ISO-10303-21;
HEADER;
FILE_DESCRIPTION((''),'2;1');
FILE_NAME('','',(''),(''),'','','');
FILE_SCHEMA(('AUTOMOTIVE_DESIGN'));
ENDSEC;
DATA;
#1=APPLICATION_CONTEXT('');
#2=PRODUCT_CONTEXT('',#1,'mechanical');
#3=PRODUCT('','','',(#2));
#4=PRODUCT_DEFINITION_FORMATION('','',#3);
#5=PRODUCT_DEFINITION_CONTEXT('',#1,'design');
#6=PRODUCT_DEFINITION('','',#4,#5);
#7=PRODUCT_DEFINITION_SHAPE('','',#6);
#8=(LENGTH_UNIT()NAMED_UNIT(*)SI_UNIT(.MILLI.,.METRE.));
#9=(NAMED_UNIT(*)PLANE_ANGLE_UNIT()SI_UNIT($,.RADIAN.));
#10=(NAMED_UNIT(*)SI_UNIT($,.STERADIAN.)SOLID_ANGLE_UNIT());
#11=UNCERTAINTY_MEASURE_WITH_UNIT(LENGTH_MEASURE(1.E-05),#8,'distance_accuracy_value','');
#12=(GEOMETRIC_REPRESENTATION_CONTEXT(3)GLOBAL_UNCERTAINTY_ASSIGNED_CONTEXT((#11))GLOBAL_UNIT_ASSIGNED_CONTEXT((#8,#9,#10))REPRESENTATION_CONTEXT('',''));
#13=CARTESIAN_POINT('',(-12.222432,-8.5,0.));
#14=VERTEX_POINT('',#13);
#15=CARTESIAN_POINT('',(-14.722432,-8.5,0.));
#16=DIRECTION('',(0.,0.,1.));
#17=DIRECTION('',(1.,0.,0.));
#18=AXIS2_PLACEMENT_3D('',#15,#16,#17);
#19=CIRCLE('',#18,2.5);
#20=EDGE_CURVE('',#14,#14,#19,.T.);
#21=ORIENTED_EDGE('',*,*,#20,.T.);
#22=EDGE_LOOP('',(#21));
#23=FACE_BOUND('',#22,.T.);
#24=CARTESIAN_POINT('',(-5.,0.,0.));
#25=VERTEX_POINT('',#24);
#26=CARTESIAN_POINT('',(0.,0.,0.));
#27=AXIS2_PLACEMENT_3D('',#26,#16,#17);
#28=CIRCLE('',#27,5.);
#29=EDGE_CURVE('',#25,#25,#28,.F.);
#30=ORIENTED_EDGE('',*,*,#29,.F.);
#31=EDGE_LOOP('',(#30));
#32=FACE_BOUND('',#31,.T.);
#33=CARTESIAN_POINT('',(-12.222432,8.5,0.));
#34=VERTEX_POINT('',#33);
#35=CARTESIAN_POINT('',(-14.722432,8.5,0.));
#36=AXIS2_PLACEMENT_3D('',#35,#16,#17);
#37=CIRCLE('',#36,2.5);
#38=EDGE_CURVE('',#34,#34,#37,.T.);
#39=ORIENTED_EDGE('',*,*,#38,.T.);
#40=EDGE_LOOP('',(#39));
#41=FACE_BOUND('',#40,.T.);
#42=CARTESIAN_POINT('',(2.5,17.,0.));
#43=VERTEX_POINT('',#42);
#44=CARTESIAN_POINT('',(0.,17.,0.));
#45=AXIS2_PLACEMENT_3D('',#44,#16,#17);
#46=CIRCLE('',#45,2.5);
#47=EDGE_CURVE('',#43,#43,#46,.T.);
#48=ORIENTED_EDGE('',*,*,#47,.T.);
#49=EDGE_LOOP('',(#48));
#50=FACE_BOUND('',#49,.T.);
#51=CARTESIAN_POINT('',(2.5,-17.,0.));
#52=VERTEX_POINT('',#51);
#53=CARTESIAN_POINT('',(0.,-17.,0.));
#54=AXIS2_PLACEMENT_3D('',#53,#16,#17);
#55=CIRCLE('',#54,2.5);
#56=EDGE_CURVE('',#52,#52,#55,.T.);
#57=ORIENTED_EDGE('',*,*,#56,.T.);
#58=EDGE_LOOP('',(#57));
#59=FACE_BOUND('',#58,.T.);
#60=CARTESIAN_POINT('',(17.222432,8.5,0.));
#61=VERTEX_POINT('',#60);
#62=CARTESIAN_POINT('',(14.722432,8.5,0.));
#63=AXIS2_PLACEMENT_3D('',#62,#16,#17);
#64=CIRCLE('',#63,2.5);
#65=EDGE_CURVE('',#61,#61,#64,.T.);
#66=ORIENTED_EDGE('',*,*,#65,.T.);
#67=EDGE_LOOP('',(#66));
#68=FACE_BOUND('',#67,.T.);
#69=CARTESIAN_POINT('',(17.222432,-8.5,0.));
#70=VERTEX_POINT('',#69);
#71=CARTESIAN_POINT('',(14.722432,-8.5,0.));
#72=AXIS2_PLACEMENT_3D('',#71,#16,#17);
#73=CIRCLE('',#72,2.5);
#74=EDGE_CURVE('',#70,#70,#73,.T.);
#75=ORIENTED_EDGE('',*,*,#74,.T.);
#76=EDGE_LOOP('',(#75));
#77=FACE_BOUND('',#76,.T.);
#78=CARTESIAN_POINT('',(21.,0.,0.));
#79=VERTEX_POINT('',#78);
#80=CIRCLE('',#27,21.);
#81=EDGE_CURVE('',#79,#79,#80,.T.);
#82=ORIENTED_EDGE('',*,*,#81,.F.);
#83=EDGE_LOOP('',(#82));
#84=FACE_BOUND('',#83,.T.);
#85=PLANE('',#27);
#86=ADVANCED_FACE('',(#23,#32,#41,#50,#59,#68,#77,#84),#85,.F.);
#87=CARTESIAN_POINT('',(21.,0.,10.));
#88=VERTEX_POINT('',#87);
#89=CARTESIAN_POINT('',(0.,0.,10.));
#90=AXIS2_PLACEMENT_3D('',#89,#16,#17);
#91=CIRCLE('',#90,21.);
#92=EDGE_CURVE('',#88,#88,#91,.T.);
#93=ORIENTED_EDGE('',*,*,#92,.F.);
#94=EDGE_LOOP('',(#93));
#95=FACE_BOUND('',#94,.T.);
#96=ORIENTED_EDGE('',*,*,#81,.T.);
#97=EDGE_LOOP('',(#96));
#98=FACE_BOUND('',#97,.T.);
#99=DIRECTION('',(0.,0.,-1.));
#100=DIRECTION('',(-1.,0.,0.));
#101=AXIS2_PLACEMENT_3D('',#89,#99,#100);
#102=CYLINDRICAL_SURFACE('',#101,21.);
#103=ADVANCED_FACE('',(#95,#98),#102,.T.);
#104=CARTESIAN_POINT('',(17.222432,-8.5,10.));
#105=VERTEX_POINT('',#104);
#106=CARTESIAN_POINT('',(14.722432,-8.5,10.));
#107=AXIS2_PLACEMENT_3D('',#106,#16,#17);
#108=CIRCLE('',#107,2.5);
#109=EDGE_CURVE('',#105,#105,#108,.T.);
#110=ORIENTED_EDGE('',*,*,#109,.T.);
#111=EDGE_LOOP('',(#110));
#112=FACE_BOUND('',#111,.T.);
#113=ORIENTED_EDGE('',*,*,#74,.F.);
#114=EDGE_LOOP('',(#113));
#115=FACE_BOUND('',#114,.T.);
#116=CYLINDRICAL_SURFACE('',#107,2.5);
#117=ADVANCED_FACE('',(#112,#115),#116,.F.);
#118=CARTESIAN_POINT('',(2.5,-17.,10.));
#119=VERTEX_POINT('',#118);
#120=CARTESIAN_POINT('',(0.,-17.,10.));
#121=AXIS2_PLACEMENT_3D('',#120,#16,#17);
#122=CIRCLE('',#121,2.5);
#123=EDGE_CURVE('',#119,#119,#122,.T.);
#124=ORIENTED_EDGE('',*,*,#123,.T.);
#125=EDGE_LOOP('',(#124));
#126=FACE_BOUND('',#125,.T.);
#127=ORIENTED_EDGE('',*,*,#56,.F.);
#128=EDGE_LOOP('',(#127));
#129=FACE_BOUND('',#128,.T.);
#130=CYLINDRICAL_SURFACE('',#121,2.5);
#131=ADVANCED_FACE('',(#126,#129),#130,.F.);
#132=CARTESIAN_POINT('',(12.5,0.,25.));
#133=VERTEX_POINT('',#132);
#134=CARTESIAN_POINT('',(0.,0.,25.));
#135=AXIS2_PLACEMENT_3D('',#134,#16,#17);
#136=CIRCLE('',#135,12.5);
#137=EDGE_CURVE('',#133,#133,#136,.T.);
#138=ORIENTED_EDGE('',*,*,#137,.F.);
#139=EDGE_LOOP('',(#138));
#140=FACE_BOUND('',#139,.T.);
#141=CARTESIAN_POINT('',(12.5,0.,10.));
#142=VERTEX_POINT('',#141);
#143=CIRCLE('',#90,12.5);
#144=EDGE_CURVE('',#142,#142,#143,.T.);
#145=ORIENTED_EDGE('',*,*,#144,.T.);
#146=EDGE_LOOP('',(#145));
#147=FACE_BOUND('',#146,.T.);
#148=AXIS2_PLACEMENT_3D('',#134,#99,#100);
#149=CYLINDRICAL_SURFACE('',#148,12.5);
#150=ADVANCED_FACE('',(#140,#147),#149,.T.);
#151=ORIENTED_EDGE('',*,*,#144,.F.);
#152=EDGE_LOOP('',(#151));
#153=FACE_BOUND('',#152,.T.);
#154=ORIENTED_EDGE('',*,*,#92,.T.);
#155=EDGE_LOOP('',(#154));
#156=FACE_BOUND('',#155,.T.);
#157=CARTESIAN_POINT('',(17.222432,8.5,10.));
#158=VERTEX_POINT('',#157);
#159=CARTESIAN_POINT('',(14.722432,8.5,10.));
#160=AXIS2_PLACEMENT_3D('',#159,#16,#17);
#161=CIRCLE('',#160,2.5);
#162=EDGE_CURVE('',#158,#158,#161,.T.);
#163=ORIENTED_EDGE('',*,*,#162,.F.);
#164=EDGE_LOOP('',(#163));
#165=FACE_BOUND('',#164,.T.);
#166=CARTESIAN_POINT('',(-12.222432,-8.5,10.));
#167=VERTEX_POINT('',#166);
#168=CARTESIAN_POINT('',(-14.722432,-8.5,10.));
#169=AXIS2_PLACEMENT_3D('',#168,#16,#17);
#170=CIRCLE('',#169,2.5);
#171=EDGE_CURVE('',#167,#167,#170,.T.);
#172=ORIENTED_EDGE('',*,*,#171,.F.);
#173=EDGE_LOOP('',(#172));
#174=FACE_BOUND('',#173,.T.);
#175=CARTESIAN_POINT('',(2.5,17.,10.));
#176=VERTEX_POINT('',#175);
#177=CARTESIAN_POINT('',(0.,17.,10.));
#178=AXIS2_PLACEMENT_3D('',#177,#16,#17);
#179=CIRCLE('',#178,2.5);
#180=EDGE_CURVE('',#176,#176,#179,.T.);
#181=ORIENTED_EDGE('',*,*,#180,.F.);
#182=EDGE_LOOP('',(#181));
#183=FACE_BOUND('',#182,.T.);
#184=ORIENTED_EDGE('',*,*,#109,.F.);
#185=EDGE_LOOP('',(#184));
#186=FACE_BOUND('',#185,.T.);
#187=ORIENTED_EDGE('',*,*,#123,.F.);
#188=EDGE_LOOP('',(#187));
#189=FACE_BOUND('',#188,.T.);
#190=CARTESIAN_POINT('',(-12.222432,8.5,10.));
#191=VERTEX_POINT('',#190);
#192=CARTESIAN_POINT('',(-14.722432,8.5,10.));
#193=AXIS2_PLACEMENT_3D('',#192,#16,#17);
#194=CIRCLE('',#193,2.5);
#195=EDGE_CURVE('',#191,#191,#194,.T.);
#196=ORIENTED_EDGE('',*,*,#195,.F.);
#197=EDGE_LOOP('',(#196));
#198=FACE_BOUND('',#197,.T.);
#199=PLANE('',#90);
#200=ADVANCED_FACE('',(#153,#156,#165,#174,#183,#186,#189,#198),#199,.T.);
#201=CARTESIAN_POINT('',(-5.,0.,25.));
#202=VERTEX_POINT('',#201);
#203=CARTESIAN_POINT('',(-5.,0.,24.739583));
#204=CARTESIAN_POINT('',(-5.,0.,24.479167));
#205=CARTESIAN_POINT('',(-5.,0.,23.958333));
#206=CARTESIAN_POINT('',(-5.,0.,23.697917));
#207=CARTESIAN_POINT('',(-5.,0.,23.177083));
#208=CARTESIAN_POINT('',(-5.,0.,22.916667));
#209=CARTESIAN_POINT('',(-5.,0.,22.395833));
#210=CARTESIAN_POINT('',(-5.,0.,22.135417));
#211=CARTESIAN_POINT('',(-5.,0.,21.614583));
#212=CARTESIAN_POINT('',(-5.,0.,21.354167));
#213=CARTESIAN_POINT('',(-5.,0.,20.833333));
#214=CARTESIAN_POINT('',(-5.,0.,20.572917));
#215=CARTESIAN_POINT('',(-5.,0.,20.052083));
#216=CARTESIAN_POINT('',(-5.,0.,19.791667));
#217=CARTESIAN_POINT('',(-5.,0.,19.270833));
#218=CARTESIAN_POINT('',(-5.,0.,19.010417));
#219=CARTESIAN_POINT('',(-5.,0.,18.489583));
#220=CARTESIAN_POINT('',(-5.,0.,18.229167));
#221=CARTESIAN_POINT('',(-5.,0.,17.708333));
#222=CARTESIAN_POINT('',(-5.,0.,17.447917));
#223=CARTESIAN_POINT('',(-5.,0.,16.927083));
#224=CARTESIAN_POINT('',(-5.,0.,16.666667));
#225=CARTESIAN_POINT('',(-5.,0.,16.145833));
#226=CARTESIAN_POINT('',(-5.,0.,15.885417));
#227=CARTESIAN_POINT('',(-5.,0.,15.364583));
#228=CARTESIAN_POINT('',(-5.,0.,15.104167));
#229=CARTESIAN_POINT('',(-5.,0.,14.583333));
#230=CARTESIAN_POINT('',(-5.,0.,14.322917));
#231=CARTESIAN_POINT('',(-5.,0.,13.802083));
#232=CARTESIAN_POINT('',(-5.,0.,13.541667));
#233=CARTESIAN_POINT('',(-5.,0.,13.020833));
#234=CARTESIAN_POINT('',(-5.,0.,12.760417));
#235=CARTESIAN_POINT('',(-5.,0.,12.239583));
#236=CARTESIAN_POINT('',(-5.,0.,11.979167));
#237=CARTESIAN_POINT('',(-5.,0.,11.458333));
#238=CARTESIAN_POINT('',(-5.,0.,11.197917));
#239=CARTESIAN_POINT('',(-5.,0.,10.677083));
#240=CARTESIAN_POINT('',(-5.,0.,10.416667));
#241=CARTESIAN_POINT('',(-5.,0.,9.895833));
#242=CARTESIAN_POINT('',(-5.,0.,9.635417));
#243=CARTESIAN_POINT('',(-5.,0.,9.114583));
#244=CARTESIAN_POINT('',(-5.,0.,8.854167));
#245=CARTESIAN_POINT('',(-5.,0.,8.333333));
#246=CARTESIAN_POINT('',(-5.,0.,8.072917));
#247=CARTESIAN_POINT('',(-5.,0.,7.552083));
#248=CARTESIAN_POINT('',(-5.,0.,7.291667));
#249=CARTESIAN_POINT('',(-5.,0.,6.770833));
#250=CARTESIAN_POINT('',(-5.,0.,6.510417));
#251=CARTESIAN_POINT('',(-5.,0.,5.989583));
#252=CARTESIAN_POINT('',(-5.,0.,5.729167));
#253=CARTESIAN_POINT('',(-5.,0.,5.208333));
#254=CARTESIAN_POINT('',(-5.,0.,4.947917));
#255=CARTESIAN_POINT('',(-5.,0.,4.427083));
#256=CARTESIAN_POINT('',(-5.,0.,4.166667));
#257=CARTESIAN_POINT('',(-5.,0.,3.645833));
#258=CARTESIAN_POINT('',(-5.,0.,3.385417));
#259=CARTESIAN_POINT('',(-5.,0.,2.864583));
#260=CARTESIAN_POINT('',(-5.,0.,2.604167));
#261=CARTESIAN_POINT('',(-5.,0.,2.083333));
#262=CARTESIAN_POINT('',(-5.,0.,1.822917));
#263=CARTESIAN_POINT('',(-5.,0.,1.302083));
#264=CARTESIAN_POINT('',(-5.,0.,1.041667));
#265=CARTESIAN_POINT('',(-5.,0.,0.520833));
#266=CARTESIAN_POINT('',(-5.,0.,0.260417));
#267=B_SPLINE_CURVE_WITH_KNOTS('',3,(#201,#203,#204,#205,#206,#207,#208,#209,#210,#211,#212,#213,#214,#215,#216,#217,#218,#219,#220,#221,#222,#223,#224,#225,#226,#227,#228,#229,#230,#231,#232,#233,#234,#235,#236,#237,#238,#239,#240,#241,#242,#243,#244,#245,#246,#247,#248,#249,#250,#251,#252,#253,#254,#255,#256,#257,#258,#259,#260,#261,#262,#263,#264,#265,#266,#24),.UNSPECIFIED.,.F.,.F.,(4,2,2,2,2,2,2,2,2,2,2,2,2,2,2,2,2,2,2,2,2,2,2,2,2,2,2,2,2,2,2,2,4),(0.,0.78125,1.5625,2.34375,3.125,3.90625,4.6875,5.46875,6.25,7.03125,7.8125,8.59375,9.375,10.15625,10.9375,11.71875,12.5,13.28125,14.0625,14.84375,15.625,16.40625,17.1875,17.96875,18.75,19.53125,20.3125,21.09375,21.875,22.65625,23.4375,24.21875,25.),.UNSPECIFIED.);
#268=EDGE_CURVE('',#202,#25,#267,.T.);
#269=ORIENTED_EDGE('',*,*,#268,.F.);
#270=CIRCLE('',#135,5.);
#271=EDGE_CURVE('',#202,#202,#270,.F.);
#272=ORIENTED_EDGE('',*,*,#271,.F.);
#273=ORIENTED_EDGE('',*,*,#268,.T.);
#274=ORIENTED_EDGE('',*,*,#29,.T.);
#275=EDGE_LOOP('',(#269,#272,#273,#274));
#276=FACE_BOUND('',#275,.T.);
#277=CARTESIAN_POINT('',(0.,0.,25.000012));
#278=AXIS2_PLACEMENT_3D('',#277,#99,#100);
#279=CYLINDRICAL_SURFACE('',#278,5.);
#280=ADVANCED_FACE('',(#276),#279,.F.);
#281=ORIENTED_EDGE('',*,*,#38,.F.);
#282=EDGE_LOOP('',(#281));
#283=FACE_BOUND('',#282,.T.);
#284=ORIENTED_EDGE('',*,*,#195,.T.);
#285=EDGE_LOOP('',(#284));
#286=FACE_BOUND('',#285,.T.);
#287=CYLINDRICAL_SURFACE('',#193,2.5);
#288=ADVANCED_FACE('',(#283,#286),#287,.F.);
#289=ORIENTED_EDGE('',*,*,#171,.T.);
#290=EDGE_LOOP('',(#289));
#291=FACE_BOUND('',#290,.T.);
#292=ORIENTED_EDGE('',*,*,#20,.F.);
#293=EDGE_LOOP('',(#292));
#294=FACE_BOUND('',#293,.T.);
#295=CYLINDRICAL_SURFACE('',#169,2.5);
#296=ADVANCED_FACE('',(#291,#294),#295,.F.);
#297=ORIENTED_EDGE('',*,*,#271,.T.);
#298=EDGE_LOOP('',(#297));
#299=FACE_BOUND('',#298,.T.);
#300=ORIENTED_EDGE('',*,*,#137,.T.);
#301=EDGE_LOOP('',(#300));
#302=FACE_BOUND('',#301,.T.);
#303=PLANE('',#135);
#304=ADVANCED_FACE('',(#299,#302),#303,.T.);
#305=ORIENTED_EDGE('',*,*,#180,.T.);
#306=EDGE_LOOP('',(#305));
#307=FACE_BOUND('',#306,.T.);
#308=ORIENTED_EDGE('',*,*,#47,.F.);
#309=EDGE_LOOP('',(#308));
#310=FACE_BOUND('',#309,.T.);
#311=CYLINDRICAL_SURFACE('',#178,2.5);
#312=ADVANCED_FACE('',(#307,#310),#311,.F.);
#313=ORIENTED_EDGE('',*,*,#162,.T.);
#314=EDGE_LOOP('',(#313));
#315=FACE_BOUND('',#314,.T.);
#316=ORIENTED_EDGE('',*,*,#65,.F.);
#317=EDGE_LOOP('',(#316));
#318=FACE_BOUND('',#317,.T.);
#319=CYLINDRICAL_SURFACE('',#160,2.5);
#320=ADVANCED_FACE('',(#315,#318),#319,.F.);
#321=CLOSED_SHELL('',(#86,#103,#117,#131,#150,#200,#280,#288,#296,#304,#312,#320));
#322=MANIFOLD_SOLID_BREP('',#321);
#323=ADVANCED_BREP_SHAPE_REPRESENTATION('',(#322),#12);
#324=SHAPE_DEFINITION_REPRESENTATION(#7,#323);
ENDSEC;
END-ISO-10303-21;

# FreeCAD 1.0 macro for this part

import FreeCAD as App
import Part
import Sketcher

V = App.Vector
Q = App.Units.Quantity

doc = App.newDocument("Part")
body = doc.addObject("PartDesign::Body", "Body")

sketch1 = body.newObject("Sketcher::SketchObject", "Sketch")
sketch1.AttachmentSupport = (doc.getObject("XY_Plane"), [""])
sketch1.MapMode = "FlatFace"
sketch1.addGeometry(Part.Circle(V(0, 0, 0), V(0, 0, 1), 21), False)
sketch1.addConstraint([
    Sketcher.Constraint("Coincident", 0, 3, -1, 1),
    Sketcher.Constraint("Diameter", 0, Q("42 mm")),
])
pad1 = body.newObject("PartDesign::Pad", "Pad")
pad1.Profile = sketch1
pad1.Length = 10

sketch2 = body.newObject("Sketcher::SketchObject", "Sketch001")
sketch2.AttachmentSupport = (doc.getObject("XY_Plane"), [""])
sketch2.MapMode = "FlatFace"
sketch2.AttachmentOffset = App.Placement(V(0, 0, 10), App.Rotation())
sketch2.addGeometry(Part.Circle(V(0, 0, 0), V(0, 0, 1), 12), False)
sketch2.addConstraint([
    Sketcher.Constraint("Coincident", 0, 3, -1, 1),
    Sketcher.Constraint("Diameter", 0, Q("25 mm")),
])
pad2 = body.newObject("PartDesign::Pad", "Pad001")
pad2.Profile = sketch2
pad2.Length = 15

sketch3 = body.newObject("Sketcher::SketchObject", "Sketch002")
sketch3.AttachmentSupport = (doc.getObject("XY_Plane"), [""])
sketch3.MapMode = "FlatFace"
sketch3.AttachmentOffset = App.Placement(V(0, 0, 10), App.Rotation())
sketch3.addGeometry(Part.Circle(V(0, 17, 0), V(0, 0, 1), 2.5), False)
sketch3.addConstraint([
    Sketcher.Constraint("PointOnObject", 0, 3, -2),
    Sketcher.Constraint("Diameter", 0, Q("5 mm")),
    Sketcher.Constraint("DistanceY", -1, 1, 0, 3, Q("17 mm")),
])
doc.recompute()
hole = body.newObject("PartDesign::Hole", "Hole")
hole.Profile = sketch3
hole.ThreadType = "None"
hole.Diameter = 5
hole.DepthType = "ThroughAll"
doc.recompute()

polarpattern = body.newObject("PartDesign::PolarPattern", "PolarPattern")
polarpattern.Originals = [hole]
polarpattern.Axis = (doc.getObject("Z_Axis"), [""])
polarpattern.Angle = 360
polarpattern.Occurrences = 6
body.Tip = polarpattern

sketch4 = body.newObject("Sketcher::SketchObject", "Sketch003")
sketch4.AttachmentSupport = (doc.getObject("XY_Plane"), [""])
sketch4.MapMode = "FlatFace"
sketch4.AttachmentOffset = App.Placement(V(0, 0, 25), App.Rotation())
sketch4.addGeometry(Part.Circle(V(0, 0, 0), V(0, 0, 1), 5), False)
sketch4.addConstraint([
    Sketcher.Constraint("Coincident", 0, 3, -1, 1),
    Sketcher.Constraint("Diameter", 0, Q("10 mm")),
])
pocket1 = body.newObject("PartDesign::Pocket", "Pocket")
pocket1.Profile = sketch4
pocket1.Type = "UpToFirst"

sketch5 = body.newObject("Sketcher::SketchObject", "Sketch004")
sketch5.AttachmentSupport = (doc.getObject("XY_Plane"), [""])
sketch5.MapMode = "FlatFace"
sketch5.AttachmentOffset = App.Placement(V(0, 0, 25), App.Rotation())
sketch5.addGeometry(Part.Circle(V(0, 0, 0), V(0, 0, 1), 5), False)
sketch5.addConstraint([
    Sketcher.Constraint("Coincident", 0, 3, -1, 1),
    Sketcher.Constraint("Diameter", 0, Q("10 mm")),
])
pocket2 = body.newObject("PartDesign::Pocket", "Pocket001")
pocket2.Profile = sketch5
pocket2.Length = 39.820098
pocket2.Reversed = True

doc.recompute()
